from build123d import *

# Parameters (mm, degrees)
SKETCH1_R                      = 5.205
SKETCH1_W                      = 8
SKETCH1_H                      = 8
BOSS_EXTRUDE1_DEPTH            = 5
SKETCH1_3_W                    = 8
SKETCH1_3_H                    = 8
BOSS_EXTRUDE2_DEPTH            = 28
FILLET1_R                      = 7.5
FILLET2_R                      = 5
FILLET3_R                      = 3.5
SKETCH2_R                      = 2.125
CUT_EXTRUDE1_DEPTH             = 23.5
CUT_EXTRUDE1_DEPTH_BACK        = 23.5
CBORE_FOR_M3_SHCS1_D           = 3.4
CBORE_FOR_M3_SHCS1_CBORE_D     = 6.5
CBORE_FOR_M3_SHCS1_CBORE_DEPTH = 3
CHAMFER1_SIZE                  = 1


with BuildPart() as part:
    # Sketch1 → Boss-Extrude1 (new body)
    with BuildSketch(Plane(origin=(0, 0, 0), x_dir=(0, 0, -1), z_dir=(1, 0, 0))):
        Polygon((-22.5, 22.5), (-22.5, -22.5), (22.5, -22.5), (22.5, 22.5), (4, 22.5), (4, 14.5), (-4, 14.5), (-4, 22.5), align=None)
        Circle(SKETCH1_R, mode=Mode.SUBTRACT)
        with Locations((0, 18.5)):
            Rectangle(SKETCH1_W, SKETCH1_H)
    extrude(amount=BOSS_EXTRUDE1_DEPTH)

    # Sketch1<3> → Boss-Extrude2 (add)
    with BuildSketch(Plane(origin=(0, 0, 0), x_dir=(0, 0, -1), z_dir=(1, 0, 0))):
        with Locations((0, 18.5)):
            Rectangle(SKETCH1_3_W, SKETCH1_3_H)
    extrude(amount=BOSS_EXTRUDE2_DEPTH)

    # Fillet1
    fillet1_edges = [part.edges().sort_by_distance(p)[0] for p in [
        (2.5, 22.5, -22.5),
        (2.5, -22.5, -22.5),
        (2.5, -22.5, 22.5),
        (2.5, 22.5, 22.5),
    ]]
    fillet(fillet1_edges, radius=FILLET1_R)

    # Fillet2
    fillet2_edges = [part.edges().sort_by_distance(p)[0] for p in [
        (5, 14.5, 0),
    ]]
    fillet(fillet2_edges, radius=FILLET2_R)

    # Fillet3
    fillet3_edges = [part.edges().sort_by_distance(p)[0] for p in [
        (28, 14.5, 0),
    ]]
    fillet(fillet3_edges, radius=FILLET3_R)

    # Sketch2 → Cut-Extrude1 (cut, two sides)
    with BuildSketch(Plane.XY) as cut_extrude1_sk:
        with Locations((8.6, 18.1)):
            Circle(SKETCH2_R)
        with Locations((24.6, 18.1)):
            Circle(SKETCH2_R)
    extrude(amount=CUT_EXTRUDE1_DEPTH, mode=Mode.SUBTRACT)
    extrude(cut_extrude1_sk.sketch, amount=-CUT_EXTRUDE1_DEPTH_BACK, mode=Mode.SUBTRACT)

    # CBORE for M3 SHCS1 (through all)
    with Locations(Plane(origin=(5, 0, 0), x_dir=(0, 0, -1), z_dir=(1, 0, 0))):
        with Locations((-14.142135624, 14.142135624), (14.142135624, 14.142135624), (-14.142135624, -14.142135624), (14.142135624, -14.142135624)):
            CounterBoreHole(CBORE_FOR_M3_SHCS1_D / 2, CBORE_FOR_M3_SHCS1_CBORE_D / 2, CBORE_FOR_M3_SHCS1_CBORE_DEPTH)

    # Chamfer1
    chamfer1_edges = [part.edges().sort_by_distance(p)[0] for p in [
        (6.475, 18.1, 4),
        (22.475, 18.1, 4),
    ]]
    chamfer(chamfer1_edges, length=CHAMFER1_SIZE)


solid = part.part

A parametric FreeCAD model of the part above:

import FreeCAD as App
import Part
import Sketcher

V = App.Vector
Q = App.Units.Quantity


def edges_at(feature, points):
    """Names of the edges that pass closest to the given points."""
    edges = feature.Shape.Edges
    near = lambda p: min(range(len(edges)), key=lambda i: edges[i].distToShape(Part.Vertex(*p))[0])
    return sorted({f"Edge{near(p) + 1}" for p in points})


def add_polygon(sketch, points):
    """Adds a closed chain of lines whose ends are joined by coincident constraints."""
    first, n = sketch.GeometryCount, len(points)
    for a, b in zip(points, points[1:] + points[:1]):
        sketch.addGeometry(Part.LineSegment(App.Vector(*a, 0), App.Vector(*b, 0)), False)
    for i in range(n):
        sketch.addConstraint(Sketcher.Constraint("Coincident", first + i, 2, first + (i + 1) % n, 1))

doc = App.newDocument("Part")
body = doc.addObject("PartDesign::Body", "Body")

# Sketch on YZ plane
sketch1 = doc.addObject("Sketcher::SketchObject", "Sketch")
body.addObject(sketch1)
sketch1.AttachmentSupport = (doc.YZ_Plane, [""])
sketch1.MapMode = "FlatFace"
add_polygon(sketch1, [(22, 22), (-22, 22), (-22, -22), (22, -22)])  # lines 0-3
sketch1.addGeometry(Part.Circle(V(0, 0, 0), V(0, 0, 1), 5), False)  # 4
sketch1.addConstraint(Sketcher.Constraint("Horizontal", 0))
sketch1.addConstraint(Sketcher.Constraint("Vertical", 1))
sketch1.addConstraint(Sketcher.Constraint("Horizontal", 2))
sketch1.addConstraint(Sketcher.Constraint("Vertical", 3))
sketch1.addConstraint(Sketcher.Constraint("Coincident", 4, 3, -1, 1))
sketch1.addConstraint(Sketcher.Constraint("Symmetric", 0, 2, 2, 2, -1, 1))
sketch1.addConstraint(Sketcher.Constraint("Equal", 2, 1))
sketch1.addConstraint(Sketcher.Constraint("Diameter", 4, Q("10.41 mm")))
sketch1.addConstraint(Sketcher.Constraint("DistanceX", 0, 2, 0, 1, Q("45 mm")))
pad1 = doc.addObject("PartDesign::Pad", "Pad")
body.addObject(pad1)
pad1.Profile = sketch1
pad1.Length = 5

# Sketch on YZ plane
sketch2 = doc.addObject("Sketcher::SketchObject", "Sketch001")
body.addObject(sketch2)
sketch2.AttachmentSupport = (doc.YZ_Plane, [""])
sketch2.MapMode = "FlatFace"
add_polygon(sketch2, [(22, 4), (14, 4), (14, -4), (22, -4)])  # lines 0-3
sketch2.addConstraint(Sketcher.Constraint("Horizontal", 0))
sketch2.addConstraint(Sketcher.Constraint("Vertical", 1))
sketch2.addConstraint(Sketcher.Constraint("Horizontal", 2))
sketch2.addConstraint(Sketcher.Constraint("Vertical", 3))
sketch2.addConstraint(Sketcher.Constraint("Equal", 2, 1))
sketch2.addConstraint(Sketcher.Constraint("DistanceX", 0, 2, 0, 1, Q("8 mm")))
sketch2.addConstraint(Sketcher.Constraint("DistanceY", -1, 1, 0, 2, Q("4 mm")))
sketch2.addConstraint(Sketcher.Constraint("DistanceX", -1, 1, 0, 2, Q("14.5 mm")))
pad2 = doc.addObject("PartDesign::Pad", "Pad001")
body.addObject(pad2)
pad2.Profile = sketch2
pad2.Length = 28
doc.recompute()

fillet = doc.addObject("PartDesign::Fillet", "Fillet")
body.addObject(fillet)
fillet.Base = (pad2, edges_at(pad2, [
    (2.5, 22.5, -22.5),
    (2.5, -22.5, -22.5),
    (2.5, -22.5, 22.5),
    (2.5, 22.5, 22.5),
]))
fillet.Radius = 7.5
doc.recompute()

fillet2 = doc.addObject("PartDesign::Fillet", "Fillet001")
body.addObject(fillet2)
fillet2.Base = (fillet, edges_at(fillet, [(5, 14.5, 0)]))
fillet2.Radius = 5
doc.recompute()

fillet3 = doc.addObject("PartDesign::Fillet", "Fillet002")
body.addObject(fillet3)
fillet3.Base = (fillet2, edges_at(fillet2, [(28, 14.5, 0)]))
fillet3.Radius = 3.5

# Sketch on XY plane
sketch3 = doc.addObject("Sketcher::SketchObject", "Sketch002")
body.addObject(sketch3)
sketch3.AttachmentSupport = (doc.XY_Plane, [""])
sketch3.MapMode = "FlatFace"
sketch3.addGeometry(Part.Circle(V(8.6, 18.1, 0), V(0, 0, 1), 2.1), False)
sketch3.addGeometry(Part.Circle(V(24.6, 18.1, 0), V(0, 0, 1), 2.1), False)
sketch3.addConstraint(Sketcher.Constraint("Equal", 0, 1))
sketch3.addConstraint(Sketcher.Constraint("Horizontal", 0, 3, 1, 3))
sketch3.addConstraint(Sketcher.Constraint("Diameter", 0, Q("4.25 mm")))
sketch3.addConstraint(Sketcher.Constraint("DistanceX", 0, 3, 1, 3, Q("16 mm")))
sketch3.addConstraint(Sketcher.Constraint("DistanceX", -1, 1, 0, 3, Q("8.6 mm")))
sketch3.addConstraint(Sketcher.Constraint("DistanceY", -1, 1, 0, 3, Q("18.1 mm")))
pocket1 = doc.addObject("PartDesign::Pocket", "Pocket")
body.addObject(pocket1)
pocket1.Profile = sketch3
pocket1.Type = "ThroughAll"
pocket1.Midplane = True

# Sketch on YZ plane
sketch4 = doc.addObject("Sketcher::SketchObject", "Sketch003")
body.addObject(sketch4)
sketch4.AttachmentSupport = (doc.YZ_Plane, [""])
sketch4.MapMode = "FlatFace"
sketch4.AttachmentOffset = App.Placement(V(0, 0, 5), App.Rotation())
sketch4.addGeometry(Part.Circle(V(14.1, 14.1, 0), V(0, 0, 1), 1.7), False)
sketch4.addGeometry(Part.Circle(V(14.1, -14.1, 0), V(0, 0, 1), 1.7), False)
sketch4.addGeometry(Part.Circle(V(-14.1, 14.1, 0), V(0, 0, 1), 1.7), False)
sketch4.addGeometry(Part.Circle(V(-14.1, -14.1, 0), V(0, 0, 1), 1.7), False)
sketch4.addConstraint(Sketcher.Constraint("Equal", 0, 1))
sketch4.addConstraint(Sketcher.Constraint("Equal", 1, 2))
sketch4.addConstraint(Sketcher.Constraint("Equal", 2, 3))
sketch4.addConstraint(Sketcher.Constraint("Symmetric", 1, 3, 2, 3, -1, 1))
sketch4.addConstraint(Sketcher.Constraint("Symmetric", 0, 3, 3, 3, -1, 1))
sketch4.addConstraint(Sketcher.Constraint("Symmetric", 0, 3, 2, 3, -2))
sketch4.addConstraint(Sketcher.Constraint("Diameter", 0, Q("3.4 mm")))
sketch4.addConstraint(Sketcher.Constraint("DistanceY", 1, 3, 0, 3, Q("28.284271 mm")))
sketch4.addConstraint(Sketcher.Constraint("DistanceX", 2, 3, 0, 3, Q("28.284271 mm")))
doc.recompute()
hole = doc.addObject("PartDesign::Hole", "Hole")
body.addObject(hole)
hole.Profile = sketch4
hole.ThreadType = "None"
hole.Diameter = 3.4
hole.DepthType = "ThroughAll"
hole.HoleCutType = "Counterbore"
hole.HoleCutDiameter = 6.5
hole.HoleCutDepth = 3
doc.recompute()

chamfer = doc.addObject("PartDesign::Chamfer", "Chamfer")
body.addObject(chamfer)
chamfer.Base = (hole, edges_at(hole, [(6.475, 18.1, 4), (22.475, 18.1, 4)]))
chamfer.Size = 1

doc.recompute()
